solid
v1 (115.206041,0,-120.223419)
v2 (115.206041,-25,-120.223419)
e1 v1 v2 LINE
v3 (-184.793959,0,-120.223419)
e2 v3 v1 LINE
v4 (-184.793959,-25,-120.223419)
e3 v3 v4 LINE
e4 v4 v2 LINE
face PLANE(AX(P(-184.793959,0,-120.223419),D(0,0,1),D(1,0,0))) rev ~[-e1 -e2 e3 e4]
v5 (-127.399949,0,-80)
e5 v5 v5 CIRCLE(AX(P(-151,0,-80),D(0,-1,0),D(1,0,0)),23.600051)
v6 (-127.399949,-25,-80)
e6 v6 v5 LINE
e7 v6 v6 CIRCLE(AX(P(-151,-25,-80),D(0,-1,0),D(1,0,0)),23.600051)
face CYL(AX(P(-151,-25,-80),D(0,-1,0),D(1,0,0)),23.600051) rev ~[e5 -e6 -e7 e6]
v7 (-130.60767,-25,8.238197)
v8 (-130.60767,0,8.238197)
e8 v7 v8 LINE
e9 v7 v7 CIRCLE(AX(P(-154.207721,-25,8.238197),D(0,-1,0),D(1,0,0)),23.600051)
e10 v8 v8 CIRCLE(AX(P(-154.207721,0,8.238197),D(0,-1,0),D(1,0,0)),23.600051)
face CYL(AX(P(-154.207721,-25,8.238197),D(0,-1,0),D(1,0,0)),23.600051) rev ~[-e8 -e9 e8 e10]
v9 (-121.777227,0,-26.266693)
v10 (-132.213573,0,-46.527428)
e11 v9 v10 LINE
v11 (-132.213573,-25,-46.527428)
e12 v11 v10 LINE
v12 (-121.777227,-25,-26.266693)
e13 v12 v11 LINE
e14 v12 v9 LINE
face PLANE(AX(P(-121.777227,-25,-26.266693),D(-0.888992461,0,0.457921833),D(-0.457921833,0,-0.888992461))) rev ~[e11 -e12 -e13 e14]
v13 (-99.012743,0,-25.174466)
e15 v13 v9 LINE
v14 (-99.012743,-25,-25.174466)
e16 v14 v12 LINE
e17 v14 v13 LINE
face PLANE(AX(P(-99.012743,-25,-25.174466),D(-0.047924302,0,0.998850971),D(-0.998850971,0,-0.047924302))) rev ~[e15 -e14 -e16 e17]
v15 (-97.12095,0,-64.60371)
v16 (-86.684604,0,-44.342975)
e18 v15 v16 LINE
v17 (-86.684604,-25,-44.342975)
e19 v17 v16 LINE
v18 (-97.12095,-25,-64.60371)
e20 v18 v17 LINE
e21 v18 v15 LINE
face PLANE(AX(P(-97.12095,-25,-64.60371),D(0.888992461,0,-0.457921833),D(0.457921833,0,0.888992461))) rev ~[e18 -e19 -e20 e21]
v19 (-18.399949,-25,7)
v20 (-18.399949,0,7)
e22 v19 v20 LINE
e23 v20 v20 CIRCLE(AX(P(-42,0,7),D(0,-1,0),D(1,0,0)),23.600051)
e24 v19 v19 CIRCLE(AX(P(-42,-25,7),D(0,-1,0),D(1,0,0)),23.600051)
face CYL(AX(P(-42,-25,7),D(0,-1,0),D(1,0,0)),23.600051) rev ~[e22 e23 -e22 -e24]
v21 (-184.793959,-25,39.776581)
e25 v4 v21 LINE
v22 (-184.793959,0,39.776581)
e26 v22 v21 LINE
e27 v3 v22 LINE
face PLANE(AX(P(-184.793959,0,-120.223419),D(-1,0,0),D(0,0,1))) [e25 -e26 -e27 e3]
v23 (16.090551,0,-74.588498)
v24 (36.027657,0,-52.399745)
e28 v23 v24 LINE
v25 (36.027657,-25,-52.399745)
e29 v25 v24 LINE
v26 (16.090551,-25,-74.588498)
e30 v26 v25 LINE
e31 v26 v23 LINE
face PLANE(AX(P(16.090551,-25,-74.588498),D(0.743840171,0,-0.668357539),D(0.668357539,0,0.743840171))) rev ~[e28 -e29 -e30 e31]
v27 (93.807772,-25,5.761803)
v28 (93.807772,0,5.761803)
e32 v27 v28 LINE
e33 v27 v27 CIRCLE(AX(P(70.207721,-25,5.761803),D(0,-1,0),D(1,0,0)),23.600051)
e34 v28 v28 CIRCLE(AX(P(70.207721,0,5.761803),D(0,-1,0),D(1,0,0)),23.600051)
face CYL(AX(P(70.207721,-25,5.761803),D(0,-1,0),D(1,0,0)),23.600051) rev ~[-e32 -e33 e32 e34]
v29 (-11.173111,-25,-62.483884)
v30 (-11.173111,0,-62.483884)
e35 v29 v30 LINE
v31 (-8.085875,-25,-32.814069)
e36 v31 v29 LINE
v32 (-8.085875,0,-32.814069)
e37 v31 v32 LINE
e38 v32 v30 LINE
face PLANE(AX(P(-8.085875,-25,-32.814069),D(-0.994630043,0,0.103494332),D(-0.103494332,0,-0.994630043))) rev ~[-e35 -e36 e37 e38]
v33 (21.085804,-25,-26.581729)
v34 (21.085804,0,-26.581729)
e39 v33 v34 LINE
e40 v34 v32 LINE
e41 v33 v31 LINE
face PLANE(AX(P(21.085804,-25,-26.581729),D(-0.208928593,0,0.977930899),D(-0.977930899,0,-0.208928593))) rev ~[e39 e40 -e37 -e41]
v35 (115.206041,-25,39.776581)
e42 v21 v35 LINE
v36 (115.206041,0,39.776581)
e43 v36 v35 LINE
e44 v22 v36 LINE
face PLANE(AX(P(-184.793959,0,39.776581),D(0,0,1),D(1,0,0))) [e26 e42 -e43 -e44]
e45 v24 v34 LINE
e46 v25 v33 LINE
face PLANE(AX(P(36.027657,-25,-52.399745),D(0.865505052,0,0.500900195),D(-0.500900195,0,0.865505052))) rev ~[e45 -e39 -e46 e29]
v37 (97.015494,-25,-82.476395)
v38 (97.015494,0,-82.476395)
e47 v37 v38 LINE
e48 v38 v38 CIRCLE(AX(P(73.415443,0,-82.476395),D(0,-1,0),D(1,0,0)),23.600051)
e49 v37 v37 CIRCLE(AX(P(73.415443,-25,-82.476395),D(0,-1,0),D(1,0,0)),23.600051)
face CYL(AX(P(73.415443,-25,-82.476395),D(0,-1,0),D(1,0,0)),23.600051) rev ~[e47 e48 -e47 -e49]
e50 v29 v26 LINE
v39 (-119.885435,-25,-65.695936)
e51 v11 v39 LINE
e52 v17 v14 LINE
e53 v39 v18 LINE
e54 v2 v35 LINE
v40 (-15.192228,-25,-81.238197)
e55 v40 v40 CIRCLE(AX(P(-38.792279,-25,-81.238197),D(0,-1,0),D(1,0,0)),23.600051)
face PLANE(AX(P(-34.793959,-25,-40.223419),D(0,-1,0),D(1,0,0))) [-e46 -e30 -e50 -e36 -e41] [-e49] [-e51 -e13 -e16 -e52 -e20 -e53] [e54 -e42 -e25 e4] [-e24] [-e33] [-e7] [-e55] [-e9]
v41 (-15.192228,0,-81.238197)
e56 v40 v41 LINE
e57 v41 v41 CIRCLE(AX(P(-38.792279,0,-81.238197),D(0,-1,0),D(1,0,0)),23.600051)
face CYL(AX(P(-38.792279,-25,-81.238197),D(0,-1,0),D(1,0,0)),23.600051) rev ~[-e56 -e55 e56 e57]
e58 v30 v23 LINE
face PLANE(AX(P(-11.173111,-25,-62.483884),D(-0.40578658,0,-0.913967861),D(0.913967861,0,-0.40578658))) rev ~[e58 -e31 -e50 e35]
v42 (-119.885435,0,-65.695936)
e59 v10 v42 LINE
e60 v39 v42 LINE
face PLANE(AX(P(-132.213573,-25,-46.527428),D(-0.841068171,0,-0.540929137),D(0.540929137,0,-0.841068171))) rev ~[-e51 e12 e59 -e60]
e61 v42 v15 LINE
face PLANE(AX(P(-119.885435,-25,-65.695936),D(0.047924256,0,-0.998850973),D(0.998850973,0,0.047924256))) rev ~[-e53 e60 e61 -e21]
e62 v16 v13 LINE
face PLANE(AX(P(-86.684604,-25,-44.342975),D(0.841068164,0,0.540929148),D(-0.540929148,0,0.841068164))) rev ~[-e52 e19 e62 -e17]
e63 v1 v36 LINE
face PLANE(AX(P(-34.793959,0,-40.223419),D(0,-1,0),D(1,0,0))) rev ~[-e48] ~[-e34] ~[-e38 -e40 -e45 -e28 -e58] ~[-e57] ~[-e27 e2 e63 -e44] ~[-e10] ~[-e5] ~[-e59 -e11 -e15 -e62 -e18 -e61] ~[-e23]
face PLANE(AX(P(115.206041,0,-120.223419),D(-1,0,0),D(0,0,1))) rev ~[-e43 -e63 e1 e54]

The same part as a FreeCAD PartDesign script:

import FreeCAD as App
import Part
import Sketcher
from FreeCAD import Vector
Q = App.Units.Quantity

doc = App.newDocument("Part")
body = doc.addObject("PartDesign::Body", "Body")

# Sketch on XZ plane
sketch1 = body.newObject("Sketcher::SketchObject", "Sketch")
sketch1.AttachmentSupport = (doc.getObject("XZ_Plane"), [""])
sketch1.MapMode = "FlatFace"
sketch1.addGeometry([
    Part.LineSegment(Vector(-185, 40, 0), Vector(-185, -120, 0)),
    Part.LineSegment(Vector(-185, -120, 0), Vector(115, -120, 0)),
    Part.LineSegment(Vector(115, -120, 0), Vector(115, 40, 0)),
    Part.LineSegment(Vector(115, 40, 0), Vector(-185, 40, 0)),
], False)
sketch1.addConstraint([
    Sketcher.Constraint("Coincident", 0, 2, 1, 1),
    Sketcher.Constraint("Coincident", 1, 2, 2, 1),
    Sketcher.Constraint("Coincident", 2, 2, 3, 1),
    Sketcher.Constraint("Coincident", 3, 2, 0, 1),
    Sketcher.Constraint("Vertical", 0),
    Sketcher.Constraint("Horizontal", 1),
    Sketcher.Constraint("Vertical", 2),
    Sketcher.Constraint("Horizontal", 3),
    Sketcher.Constraint("DistanceX", 1, 1, 1, 2, Q("300 mm")),
    Sketcher.Constraint("DistanceY", 0, 2, 0, 1, Q("160 mm")),
    Sketcher.Constraint("DistanceX", 0, 2, -1, 1, Q("184.793959 mm")),
    Sketcher.Constraint("DistanceY", 0, 2, -1, 1, Q("120.223419 mm")),
])
pad1 = body.newObject("PartDesign::Pad", "Pad")
pad1.Profile = sketch1
pad1.Length = 25

# Sketch on XZ plane
sketch2 = body.newObject("Sketcher::SketchObject", "Sketch001")
sketch2.AttachmentSupport = (doc.getObject("XZ_Plane"), [""])
sketch2.MapMode = "FlatFace"
sketch2.AttachmentOffset = App.Placement(Vector(0, 0, 25), App.Rotation())
sketch2.addGeometry([
    Part.Circle(Vector(-154, 8, 0), Vector(0, 0, 1), 24),  # 0
    Part.Circle(Vector(-42, 7, 0), Vector(0, 0, 1), 24),  # 1
    Part.Circle(Vector(70, 6, 0), Vector(0, 0, 1), 24),  # 2
    Part.Circle(Vector(73, -82, 0), Vector(0, 0, 1), 24),  # 3
    Part.Circle(Vector(-39, -81, 0), Vector(0, 0, 1), 24),  # 4
    Part.Circle(Vector(-151, -80, 0), Vector(0, 0, 1), 24),  # 5
], False)
sketch2.addConstraint([
    Sketcher.Constraint("Equal", 0, 1),
    Sketcher.Constraint("Equal", 1, 2),
    Sketcher.Constraint("Equal", 2, 3),
    Sketcher.Constraint("Equal", 3, 4),
    Sketcher.Constraint("Equal", 4, 5),
    Sketcher.Constraint("DistanceX", 1, 3, -1, 1, Q("42 mm")),
    Sketcher.Constraint("DistanceY", -1, 1, 1, 3, Q("7 mm")),
    Sketcher.Constraint("DistanceX", 5, 3, -1, 1, Q("151 mm")),
    Sketcher.Constraint("DistanceY", 5, 3, -1, 1, Q("80 mm")),
    Sketcher.Constraint("DistanceX", 4, 3, 2, 3, Q("109 mm")),
    Sketcher.Constraint("DistanceY", 4, 3, 2, 3, Q("87 mm")),
    Sketcher.Constraint("Diameter", 0, Q("47.200102 mm")),
    Sketcher.Constraint("DistanceX", 0, 3, -1, 1, Q("154.207721 mm")),
    Sketcher.Constraint("DistanceX", -1, 1, 2, 3, Q("70.207721 mm")),
    Sketcher.Constraint("DistanceX", 2, 3, 3, 3, Q("3.207722 mm")),
    Sketcher.Constraint("DistanceY", 3, 3, 0, 3, Q("90.714592 mm")),
    Sketcher.Constraint("DistanceY", -1, 1, 0, 3, Q("8.238197 mm")),
    Sketcher.Constraint("DistanceY", -1, 1, 2, 3, Q("5.761803 mm")),
])
pocket1 = body.newObject("PartDesign::Pocket", "Pocket")
pocket1.Profile = sketch2
pocket1.Type = "ThroughAll"

# Sketch on XZ plane
sketch3 = body.newObject("Sketcher::SketchObject", "Sketch002")
sketch3.AttachmentSupport = (doc.getObject("XZ_Plane"), [""])
sketch3.MapMode = "FlatFace"
sketch3.AttachmentOffset = App.Placement(Vector(0, 0, 25), App.Rotation())
sketch3.addGeometry([
    Part.LineSegment(Vector(-87, -44, 0), Vector(-99, -25, 0)),  # 0
    Part.LineSegment(Vector(-99, -25, 0), Vector(-122, -26, 0)),  # 1
    Part.LineSegment(Vector(-122, -26, 0), Vector(-132, -47, 0)),  # 2
    Part.LineSegment(Vector(-132, -47, 0), Vector(-120, -66, 0)),  # 3
    Part.LineSegment(Vector(-120, -66, 0), Vector(-97, -65, 0)),  # 4
    Part.LineSegment(Vector(-97, -65, 0), Vector(-87, -44, 0)),  # 5
], False)
sketch3.addConstraint([
    Sketcher.Constraint("Coincident", 0, 2, 1, 1),
    Sketcher.Constraint("Coincident", 1, 2, 2, 1),
    Sketcher.Constraint("Coincident", 2, 2, 3, 1),
    Sketcher.Constraint("Coincident", 3, 2, 4, 1),
    Sketcher.Constraint("Coincident", 4, 2, 5, 1),
    Sketcher.Constraint("Coincident", 5, 2, 0, 1),
    Sketcher.Constraint("Parallel", 0, 3),
    Sketcher.Constraint("Parallel", 1, 4),
    Sketcher.Constraint("Parallel", 2, 5),
    Sketcher.Constraint("Equal", 0, 1),
    Sketcher.Constraint("Equal", 1, 2),
    Sketcher.Constraint("Equal", 2, 3),
    Sketcher.Constraint("Distance", 1, Q("22.790671 mm")),
    Sketcher.Constraint("DistanceX", 4, 2, -1, 1, Q("97.12095 mm")),
    Sketcher.Constraint("DistanceY", 4, 2, -1, 1, Q("64.60371 mm")),
    Sketcher.Constraint("DistanceX", 2, 2, 0, 2, Q("33.20083 mm")),
    Sketcher.Constraint("DistanceY", 3, 2, 2, 2, Q("19.168508 mm")),
    Sketcher.Constraint("DistanceX", 1, 2, 3, 2, Q("1.891792 mm")),
])
pocket2 = body.newObject("PartDesign::Pocket", "Pocket001")
pocket2.Profile = sketch3
pocket2.Type = "ThroughAll"

# Sketch on XZ plane
sketch4 = body.newObject("Sketcher::SketchObject", "Sketch003")
sketch4.AttachmentSupport = (doc.getObject("XZ_Plane"), [""])
sketch4.MapMode = "FlatFace"
sketch4.AttachmentOffset = App.Placement(Vector(0, 0, 25), App.Rotation())
sketch4.addGeometry([
    Part.LineSegment(Vector(36.027657, -52.399745, 0), Vector(21.085804, -26.581729, 0)),  # 0
    Part.LineSegment(Vector(21.085804, -26.581729, 0), Vector(-8.085875, -32.814069, 0)),  # 1
    Part.LineSegment(Vector(-8.085875, -32.814069, 0), Vector(-11.173111, -62.483884, 0)),  # 2
    Part.LineSegment(Vector(-11.173111, -62.483884, 0), Vector(16.090551, -74.588498, 0)),  # 3
    Part.LineSegment(Vector(16.090551, -74.588498, 0), Vector(36.027657, -52.399745, 0)),  # 4
], False)
sketch4.addConstraint([
    Sketcher.Constraint("Coincident", 0, 2, 1, 1),
    Sketcher.Constraint("Coincident", 1, 2, 2, 1),
    Sketcher.Constraint("Coincident", 2, 2, 3, 1),
    Sketcher.Constraint("Coincident", 3, 2, 4, 1),
    Sketcher.Constraint("Coincident", 4, 2, 0, 1),
    Sketcher.Constraint("Distance", 0, Q("29.83 mm")),
    Sketcher.Constraint("Distance", 1, Q("29.83 mm")),
    Sketcher.Constraint("Distance", 2, Q("29.830001 mm")),
    Sketcher.Constraint("Distance", 3, Q("29.830001 mm")),
    Sketcher.Constraint("Distance", 4, Q("29.830001 mm")),
    Sketcher.Constraint("DistanceY", 3, 2, -1, 1, Q("74.588498 mm")),
    Sketcher.Constraint("DistanceY", 0, 2, -1, 1, Q("26.581729 mm")),
    Sketcher.Constraint("DistanceY", 1, 2, -1, 1, Q("32.814069 mm")),
    Sketcher.Constraint("DistanceX", 2, 2, -1, 1, Q("11.173111 mm")),
    Sketcher.Constraint("DistanceX", -1, 1, 3, 2, Q("16.090551 mm")),
])
pocket3 = body.newObject("PartDesign::Pocket", "Pocket002")
pocket3.Profile = sketch4
pocket3.Type = "ThroughAll"

doc.recompute()
